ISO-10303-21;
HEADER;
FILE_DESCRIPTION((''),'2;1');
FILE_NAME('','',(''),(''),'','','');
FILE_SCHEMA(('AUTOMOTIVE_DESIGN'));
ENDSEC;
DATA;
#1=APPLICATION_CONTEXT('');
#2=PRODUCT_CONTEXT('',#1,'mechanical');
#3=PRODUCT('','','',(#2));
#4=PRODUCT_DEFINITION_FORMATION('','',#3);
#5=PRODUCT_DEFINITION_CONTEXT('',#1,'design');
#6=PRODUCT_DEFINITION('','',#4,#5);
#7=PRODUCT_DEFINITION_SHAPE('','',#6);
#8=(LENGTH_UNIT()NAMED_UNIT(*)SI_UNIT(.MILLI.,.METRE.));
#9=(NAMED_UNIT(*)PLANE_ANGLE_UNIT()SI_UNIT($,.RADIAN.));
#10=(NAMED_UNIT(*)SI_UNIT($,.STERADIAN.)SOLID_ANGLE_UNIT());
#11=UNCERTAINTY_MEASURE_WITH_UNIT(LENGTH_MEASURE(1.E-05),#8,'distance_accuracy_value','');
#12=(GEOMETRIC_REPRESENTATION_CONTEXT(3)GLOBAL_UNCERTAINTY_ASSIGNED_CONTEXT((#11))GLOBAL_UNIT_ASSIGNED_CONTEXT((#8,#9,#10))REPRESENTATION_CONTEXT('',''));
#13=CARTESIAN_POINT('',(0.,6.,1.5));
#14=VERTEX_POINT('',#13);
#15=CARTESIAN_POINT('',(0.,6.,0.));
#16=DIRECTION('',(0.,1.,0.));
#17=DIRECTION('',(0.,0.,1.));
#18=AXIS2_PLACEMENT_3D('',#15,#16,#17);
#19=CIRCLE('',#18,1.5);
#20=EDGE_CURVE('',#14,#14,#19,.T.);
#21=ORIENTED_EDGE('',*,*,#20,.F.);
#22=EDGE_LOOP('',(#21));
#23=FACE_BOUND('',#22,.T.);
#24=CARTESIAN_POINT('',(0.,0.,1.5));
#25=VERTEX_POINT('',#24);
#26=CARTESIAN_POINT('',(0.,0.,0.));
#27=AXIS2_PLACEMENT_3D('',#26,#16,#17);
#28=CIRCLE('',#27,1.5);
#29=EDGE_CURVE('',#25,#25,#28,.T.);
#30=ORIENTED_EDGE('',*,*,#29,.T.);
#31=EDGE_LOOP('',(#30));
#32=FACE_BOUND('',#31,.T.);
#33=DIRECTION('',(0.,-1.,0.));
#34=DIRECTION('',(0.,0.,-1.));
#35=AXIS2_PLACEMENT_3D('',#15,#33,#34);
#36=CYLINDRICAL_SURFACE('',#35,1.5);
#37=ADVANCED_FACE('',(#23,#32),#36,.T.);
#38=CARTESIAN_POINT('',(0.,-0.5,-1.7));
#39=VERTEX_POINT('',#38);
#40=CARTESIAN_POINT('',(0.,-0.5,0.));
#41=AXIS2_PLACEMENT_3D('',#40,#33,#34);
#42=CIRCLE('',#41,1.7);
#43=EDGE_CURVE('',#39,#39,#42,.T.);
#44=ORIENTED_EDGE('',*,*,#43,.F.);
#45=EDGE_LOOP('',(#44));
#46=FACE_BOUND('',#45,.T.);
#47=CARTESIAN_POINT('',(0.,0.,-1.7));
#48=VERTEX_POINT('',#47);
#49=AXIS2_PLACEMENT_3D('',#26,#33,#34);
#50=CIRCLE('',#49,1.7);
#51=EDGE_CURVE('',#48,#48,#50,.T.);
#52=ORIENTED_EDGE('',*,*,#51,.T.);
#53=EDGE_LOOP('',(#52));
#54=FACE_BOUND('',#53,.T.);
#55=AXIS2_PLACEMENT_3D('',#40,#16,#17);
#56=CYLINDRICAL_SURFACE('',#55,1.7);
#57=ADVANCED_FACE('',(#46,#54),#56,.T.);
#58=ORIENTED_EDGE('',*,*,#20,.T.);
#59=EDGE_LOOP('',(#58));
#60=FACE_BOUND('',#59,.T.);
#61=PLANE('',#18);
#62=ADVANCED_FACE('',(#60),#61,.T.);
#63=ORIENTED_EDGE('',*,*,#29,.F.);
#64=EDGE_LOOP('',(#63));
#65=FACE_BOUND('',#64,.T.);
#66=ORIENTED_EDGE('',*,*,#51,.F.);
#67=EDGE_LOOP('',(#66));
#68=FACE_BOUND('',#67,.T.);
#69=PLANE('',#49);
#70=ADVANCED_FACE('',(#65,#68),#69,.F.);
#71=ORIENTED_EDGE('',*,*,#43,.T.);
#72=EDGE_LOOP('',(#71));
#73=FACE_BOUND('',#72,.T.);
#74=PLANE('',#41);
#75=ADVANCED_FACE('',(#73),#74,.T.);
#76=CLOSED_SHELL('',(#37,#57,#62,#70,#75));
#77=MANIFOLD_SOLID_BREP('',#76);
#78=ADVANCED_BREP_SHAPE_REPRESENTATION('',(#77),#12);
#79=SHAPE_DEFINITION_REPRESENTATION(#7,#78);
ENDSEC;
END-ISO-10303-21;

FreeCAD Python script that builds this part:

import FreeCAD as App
import Part
import Sketcher
from FreeCAD import Vector
Q = App.Units.Quantity

doc = App.newDocument("Part")
body = doc.addObject("PartDesign::Body", "Body")

sketch1 = body.newObject("Sketcher::SketchObject", "Sketch")
sketch1.AttachmentSupport = (doc.getObject("XZ_Plane"), [""])
sketch1.MapMode = "FlatFace"
sketch1.addGeometry(Part.Circle(Vector(0, 0, 0), Vector(0, 0, 1), 1.5), False)
sketch1.addConstraint([
    Sketcher.Constraint("Coincident", 0, 3, -1, 1),
    Sketcher.Constraint("Diameter", 0, Q("3 mm")),
])
pad1 = body.newObject("PartDesign::Pad", "Pad")
pad1.Profile = sketch1
pad1.Length = 6
pad1.Reversed = True

sketch2 = body.newObject("Sketcher::SketchObject", "Sketch001")
sketch2.AttachmentSupport = (doc.getObject("XZ_Plane"), [""])
sketch2.MapMode = "FlatFace"
sketch2.addGeometry(Part.Circle(Vector(0, 0, 0), Vector(0, 0, 1), 1.7), False)
sketch2.addConstraint([
    Sketcher.Constraint("Coincident", 0, 3, -1, 1),
    Sketcher.Constraint("Diameter", 0, Q("3.4 mm")),
])
pad2 = body.newObject("PartDesign::Pad", "Pad001")
pad2.Profile = sketch2
pad2.Length = 0.5

doc.recompute()
